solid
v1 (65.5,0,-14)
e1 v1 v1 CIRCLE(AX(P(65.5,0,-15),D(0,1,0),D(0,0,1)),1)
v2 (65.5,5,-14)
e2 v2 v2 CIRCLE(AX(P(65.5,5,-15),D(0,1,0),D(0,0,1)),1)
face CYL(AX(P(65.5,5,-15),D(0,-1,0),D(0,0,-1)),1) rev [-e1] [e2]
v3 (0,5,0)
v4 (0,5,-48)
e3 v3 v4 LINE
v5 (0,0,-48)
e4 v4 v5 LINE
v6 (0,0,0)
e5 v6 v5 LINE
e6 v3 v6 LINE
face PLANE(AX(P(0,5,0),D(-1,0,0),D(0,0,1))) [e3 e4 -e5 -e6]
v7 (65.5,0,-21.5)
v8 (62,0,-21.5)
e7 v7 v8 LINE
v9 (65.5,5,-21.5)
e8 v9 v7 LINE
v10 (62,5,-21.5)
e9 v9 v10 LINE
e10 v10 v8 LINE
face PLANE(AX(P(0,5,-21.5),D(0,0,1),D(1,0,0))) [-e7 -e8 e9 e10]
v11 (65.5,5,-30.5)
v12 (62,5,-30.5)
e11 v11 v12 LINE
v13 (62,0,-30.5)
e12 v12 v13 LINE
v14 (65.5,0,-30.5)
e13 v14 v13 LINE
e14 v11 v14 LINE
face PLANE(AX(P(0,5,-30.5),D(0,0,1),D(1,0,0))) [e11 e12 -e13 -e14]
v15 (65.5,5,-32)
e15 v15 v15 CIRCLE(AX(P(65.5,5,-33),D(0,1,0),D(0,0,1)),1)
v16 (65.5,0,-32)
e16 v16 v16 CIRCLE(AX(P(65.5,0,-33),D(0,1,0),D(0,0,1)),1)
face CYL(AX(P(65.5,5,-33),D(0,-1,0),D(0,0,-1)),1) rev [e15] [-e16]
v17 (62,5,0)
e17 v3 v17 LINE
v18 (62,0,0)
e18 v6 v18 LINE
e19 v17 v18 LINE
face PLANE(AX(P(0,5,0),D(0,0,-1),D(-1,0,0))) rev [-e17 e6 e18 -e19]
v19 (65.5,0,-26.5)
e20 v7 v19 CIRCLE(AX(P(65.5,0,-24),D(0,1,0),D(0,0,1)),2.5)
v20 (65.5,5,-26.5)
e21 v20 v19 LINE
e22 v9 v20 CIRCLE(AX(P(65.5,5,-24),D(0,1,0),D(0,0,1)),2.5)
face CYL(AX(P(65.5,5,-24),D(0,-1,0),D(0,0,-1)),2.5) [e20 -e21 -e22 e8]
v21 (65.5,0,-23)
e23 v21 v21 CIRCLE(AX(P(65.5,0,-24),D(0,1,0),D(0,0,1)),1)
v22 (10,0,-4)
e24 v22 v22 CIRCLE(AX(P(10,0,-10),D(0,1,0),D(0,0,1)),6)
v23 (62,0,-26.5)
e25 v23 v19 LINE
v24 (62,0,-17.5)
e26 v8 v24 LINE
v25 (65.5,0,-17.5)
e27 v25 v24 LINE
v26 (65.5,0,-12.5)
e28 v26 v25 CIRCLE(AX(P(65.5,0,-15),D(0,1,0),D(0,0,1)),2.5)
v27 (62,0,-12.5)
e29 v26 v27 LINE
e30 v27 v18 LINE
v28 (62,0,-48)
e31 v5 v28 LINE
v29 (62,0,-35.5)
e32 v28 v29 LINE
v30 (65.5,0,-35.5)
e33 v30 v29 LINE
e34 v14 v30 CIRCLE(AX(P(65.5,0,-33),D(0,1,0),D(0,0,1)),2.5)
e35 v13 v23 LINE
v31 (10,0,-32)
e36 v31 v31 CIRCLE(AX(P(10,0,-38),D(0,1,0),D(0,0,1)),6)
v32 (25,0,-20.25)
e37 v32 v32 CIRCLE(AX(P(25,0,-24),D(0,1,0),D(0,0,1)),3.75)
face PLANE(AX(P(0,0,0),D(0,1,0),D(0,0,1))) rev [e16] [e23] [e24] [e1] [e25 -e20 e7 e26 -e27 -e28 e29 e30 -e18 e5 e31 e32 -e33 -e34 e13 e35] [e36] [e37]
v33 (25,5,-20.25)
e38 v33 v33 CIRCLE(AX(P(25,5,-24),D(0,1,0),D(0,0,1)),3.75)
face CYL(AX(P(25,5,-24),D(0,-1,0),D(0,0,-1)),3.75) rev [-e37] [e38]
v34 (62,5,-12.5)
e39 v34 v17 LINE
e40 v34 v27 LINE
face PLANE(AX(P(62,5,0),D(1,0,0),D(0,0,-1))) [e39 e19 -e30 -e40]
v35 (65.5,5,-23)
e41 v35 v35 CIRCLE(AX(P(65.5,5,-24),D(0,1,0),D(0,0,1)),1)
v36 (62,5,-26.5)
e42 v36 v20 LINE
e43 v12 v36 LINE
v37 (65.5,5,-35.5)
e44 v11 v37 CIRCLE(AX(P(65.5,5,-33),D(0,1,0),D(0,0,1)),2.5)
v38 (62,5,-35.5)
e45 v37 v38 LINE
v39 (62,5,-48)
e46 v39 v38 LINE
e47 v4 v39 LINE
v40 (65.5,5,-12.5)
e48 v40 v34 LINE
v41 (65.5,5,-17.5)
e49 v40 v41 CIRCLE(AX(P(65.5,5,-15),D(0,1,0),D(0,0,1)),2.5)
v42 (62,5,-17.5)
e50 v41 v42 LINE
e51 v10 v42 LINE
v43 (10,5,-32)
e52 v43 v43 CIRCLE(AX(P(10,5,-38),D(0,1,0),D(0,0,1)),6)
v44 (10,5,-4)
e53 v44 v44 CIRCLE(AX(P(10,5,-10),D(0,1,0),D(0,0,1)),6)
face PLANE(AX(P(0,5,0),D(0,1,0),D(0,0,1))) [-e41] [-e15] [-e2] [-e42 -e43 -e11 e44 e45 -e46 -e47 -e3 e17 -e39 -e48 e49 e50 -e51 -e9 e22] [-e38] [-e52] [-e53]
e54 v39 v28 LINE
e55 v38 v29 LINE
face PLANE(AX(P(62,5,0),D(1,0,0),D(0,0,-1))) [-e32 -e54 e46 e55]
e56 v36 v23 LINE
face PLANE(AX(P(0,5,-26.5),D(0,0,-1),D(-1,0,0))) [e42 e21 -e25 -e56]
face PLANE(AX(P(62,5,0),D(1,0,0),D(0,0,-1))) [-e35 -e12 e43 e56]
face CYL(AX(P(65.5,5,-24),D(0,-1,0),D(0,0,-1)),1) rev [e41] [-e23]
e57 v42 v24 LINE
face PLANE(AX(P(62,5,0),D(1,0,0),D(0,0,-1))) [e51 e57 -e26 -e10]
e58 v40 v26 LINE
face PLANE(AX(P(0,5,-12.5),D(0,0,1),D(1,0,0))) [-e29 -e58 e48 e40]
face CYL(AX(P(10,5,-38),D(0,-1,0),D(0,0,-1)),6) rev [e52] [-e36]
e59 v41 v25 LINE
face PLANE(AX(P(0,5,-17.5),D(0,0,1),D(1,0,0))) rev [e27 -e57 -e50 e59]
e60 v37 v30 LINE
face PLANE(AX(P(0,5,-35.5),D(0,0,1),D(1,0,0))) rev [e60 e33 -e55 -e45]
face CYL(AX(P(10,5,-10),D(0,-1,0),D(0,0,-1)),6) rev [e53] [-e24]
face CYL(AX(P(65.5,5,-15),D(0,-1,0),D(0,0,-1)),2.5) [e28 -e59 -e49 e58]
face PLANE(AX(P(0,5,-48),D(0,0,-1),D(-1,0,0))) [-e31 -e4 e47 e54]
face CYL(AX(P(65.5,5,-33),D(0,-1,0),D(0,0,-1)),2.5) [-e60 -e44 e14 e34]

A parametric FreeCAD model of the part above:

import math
import FreeCAD as App
import Part
import Sketcher
Q = App.Units.Quantity

doc = App.newDocument("Part")
body = doc.addObject("PartDesign::Body", "Body")

sketch1 = body.newObject("Sketcher::SketchObject", "Sketch")
sketch1.AttachmentSupport = (doc.getObject("XZ_Plane"), [""])
sketch1.MapMode = "FlatFace"
sketch1.addGeometry(Part.LineSegment(App.Vector(62, -12.5, 0), App.Vector(65.5, -12.5, 0)), False)
sketch1.addGeometry(Part.ArcOfCircle(Part.Circle(App.Vector(65.5, -15, 0), App.Vector(0, 0, 1), 2.5), math.radians(-90), math.radians(90)), False)
sketch1.addGeometry(Part.LineSegment(App.Vector(65.5, -17.5, 0), App.Vector(62, -17.5, 0)), False)
sketch1.addGeometry(Part.LineSegment(App.Vector(62, -17.5, 0), App.Vector(62, -21.5, 0)), False)
sketch1.addGeometry(Part.LineSegment(App.Vector(62, -21.5, 0), App.Vector(65.5, -21.5, 0)), False)
sketch1.addGeometry(Part.ArcOfCircle(Part.Circle(App.Vector(65.5, -24, 0), App.Vector(0, 0, 1), 2.5), math.radians(-90), math.radians(90)), False)
sketch1.addGeometry(Part.LineSegment(App.Vector(65.5, -26.5, 0), App.Vector(62, -26.5, 0)), False)
sketch1.addGeometry(Part.LineSegment(App.Vector(62, -26.5, 0), App.Vector(62, -30.5, 0)), False)
sketch1.addGeometry(Part.LineSegment(App.Vector(62, -30.5, 0), App.Vector(65.5, -30.5, 0)), False)
sketch1.addGeometry(Part.ArcOfCircle(Part.Circle(App.Vector(65.5, -33, 0), App.Vector(0, 0, 1), 2.5), math.radians(-90), math.radians(90)), False)
sketch1.addGeometry(Part.LineSegment(App.Vector(65.5, -35.5, 0), App.Vector(62, -35.5, 0)), False)
sketch1.addGeometry(Part.LineSegment(App.Vector(62, -35.5, 0), App.Vector(62, -48, 0)), False)
sketch1.addGeometry(Part.LineSegment(App.Vector(62, -48, 0), App.Vector(0, -48, 0)), False)
sketch1.addGeometry(Part.LineSegment(App.Vector(0, -48, 0), App.Vector(0, 0, 0)), False)
sketch1.addGeometry(Part.LineSegment(App.Vector(0, 0, 0), App.Vector(62, 0, 0)), False)
sketch1.addGeometry(Part.LineSegment(App.Vector(62, 0, 0), App.Vector(62, -12.5, 0)), False)
sketch1.addGeometry(Part.Circle(App.Vector(65.5, -15, 0), App.Vector(0, 0, 1), 1), False)
sketch1.addGeometry(Part.Circle(App.Vector(10, -10, 0), App.Vector(0, 0, 1), 6), False)
sketch1.addGeometry(Part.Circle(App.Vector(65.5, -24, 0), App.Vector(0, 0, 1), 1), False)
sketch1.addGeometry(Part.Circle(App.Vector(65.5, -33, 0), App.Vector(0, 0, 1), 1), False)
sketch1.addGeometry(Part.Circle(App.Vector(25, -24, 0), App.Vector(0, 0, 1), 3.8), False)
sketch1.addGeometry(Part.Circle(App.Vector(10, -38, 0), App.Vector(0, 0, 1), 6), False)
sketch1.addConstraint(Sketcher.Constraint("Tangent", 0, 2, 1, 2))
sketch1.addConstraint(Sketcher.Constraint("Tangent", 1, 1, 2, 1))
sketch1.addConstraint(Sketcher.Constraint("Coincident", 2, 2, 3, 1))
sketch1.addConstraint(Sketcher.Constraint("Coincident", 3, 2, 4, 1))
sketch1.addConstraint(Sketcher.Constraint("Tangent", 4, 2, 5, 2))
sketch1.addConstraint(Sketcher.Constraint("Tangent", 5, 1, 6, 1))
sketch1.addConstraint(Sketcher.Constraint("Coincident", 6, 2, 7, 1))
sketch1.addConstraint(Sketcher.Constraint("Coincident", 7, 2, 8, 1))
sketch1.addConstraint(Sketcher.Constraint("Tangent", 8, 2, 9, 2))
sketch1.addConstraint(Sketcher.Constraint("Tangent", 9, 1, 10, 1))
sketch1.addConstraint(Sketcher.Constraint("Coincident", 10, 2, 11, 1))
sketch1.addConstraint(Sketcher.Constraint("Coincident", 11, 2, 12, 1))
sketch1.addConstraint(Sketcher.Constraint("Coincident", 12, 2, 13, 1))
sketch1.addConstraint(Sketcher.Constraint("Coincident", 13, 2, 14, 1))
sketch1.addConstraint(Sketcher.Constraint("Coincident", 14, 2, 15, 1))
sketch1.addConstraint(Sketcher.Constraint("Coincident", 15, 2, 0, 1))
sketch1.addConstraint(Sketcher.Constraint("Horizontal", 0))
sketch1.addConstraint(Sketcher.Constraint("Horizontal", 2))
sketch1.addConstraint(Sketcher.Constraint("Vertical", 3))
sketch1.addConstraint(Sketcher.Constraint("Horizontal", 4))
sketch1.addConstraint(Sketcher.Constraint("Horizontal", 6))
sketch1.addConstraint(Sketcher.Constraint("Vertical", 7))
sketch1.addConstraint(Sketcher.Constraint("Horizontal", 8))
sketch1.addConstraint(Sketcher.Constraint("Horizontal", 10))
sketch1.addConstraint(Sketcher.Constraint("Vertical", 11))
sketch1.addConstraint(Sketcher.Constraint("Horizontal", 12))
sketch1.addConstraint(Sketcher.Constraint("Vertical", 13))
sketch1.addConstraint(Sketcher.Constraint("Horizontal", 14))
sketch1.addConstraint(Sketcher.Constraint("Vertical", 15))
sketch1.addConstraint(Sketcher.Constraint("Coincident", 13, 2, -1, 1))
sketch1.addConstraint(Sketcher.Constraint("Coincident", 16, 3, 1, 3))
sketch1.addConstraint(Sketcher.Constraint("Coincident", 18, 3, 5, 3))
sketch1.addConstraint(Sketcher.Constraint("Coincident", 19, 3, 9, 3))
sketch1.addConstraint(Sketcher.Constraint("Equal", 1, 5))
sketch1.addConstraint(Sketcher.Constraint("Equal", 5, 9))
sketch1.addConstraint(Sketcher.Constraint("Equal", 16, 18))
sketch1.addConstraint(Sketcher.Constraint("Equal", 18, 19))
sketch1.addConstraint(Sketcher.Constraint("Equal", 17, 21))
sketch1.addConstraint(Sketcher.Constraint("Horizontal", 18, 3, 20, 3))
sketch1.addConstraint(Sketcher.Constraint("Vertical", 1, 3, 5, 3))
sketch1.addConstraint(Sketcher.Constraint("Vertical", 5, 3, 9, 3))
sketch1.addConstraint(Sketcher.Constraint("Vertical", 17, 3, 21, 3))
sketch1.addConstraint(Sketcher.Constraint("Vertical", 3, 2, 6, 2))
sketch1.addConstraint(Sketcher.Constraint("Vertical", 7, 2, 10, 2))
sketch1.addConstraint(Sketcher.Constraint("Vertical", 11, 2, 14, 2))
sketch1.addConstraint(Sketcher.Constraint("Equal", 3, 7))
sketch1.addConstraint(Sketcher.Constraint("Equal", 11, 15))
sketch1.addConstraint(Sketcher.Constraint("Diameter", 16, Q("2 mm")))
sketch1.addConstraint(Sketcher.Constraint("Diameter", 17, Q("12 mm")))
sketch1.addConstraint(Sketcher.Constraint("Diameter", 20, Q("7.5 mm")))
sketch1.addConstraint(Sketcher.Constraint("Radius", 1, Q("2.5 mm")))
sketch1.addConstraint(Sketcher.Constraint("DistanceX", 12, 2, 12, 1, Q("62 mm")))
sketch1.addConstraint(Sketcher.Constraint("DistanceY", 3, 2, 3, 1, Q("4 mm")))
sketch1.addConstraint(Sketcher.Constraint("DistanceY", 13, 1, 13, 2, Q("48 mm")))
sketch1.addConstraint(Sketcher.Constraint("DistanceX", 0, 1, 0, 2, Q("3.5 mm")))
sketch1.addConstraint(Sketcher.Constraint("DistanceX", -1, 1, 17, 3, Q("10 mm")))
sketch1.addConstraint(Sketcher.Constraint("DistanceY", 17, 3, -1, 1, Q("10 mm")))
sketch1.addConstraint(Sketcher.Constraint("DistanceX", -1, 1, 20, 3, Q("25 mm")))
sketch1.addConstraint(Sketcher.Constraint("DistanceY", 21, 3, -1, 1, Q("38 mm")))
pad1 = body.newObject("PartDesign::Pad", "Pad")
pad1.Profile = sketch1
pad1.Length = 5
pad1.Reversed = True

doc.recompute()
